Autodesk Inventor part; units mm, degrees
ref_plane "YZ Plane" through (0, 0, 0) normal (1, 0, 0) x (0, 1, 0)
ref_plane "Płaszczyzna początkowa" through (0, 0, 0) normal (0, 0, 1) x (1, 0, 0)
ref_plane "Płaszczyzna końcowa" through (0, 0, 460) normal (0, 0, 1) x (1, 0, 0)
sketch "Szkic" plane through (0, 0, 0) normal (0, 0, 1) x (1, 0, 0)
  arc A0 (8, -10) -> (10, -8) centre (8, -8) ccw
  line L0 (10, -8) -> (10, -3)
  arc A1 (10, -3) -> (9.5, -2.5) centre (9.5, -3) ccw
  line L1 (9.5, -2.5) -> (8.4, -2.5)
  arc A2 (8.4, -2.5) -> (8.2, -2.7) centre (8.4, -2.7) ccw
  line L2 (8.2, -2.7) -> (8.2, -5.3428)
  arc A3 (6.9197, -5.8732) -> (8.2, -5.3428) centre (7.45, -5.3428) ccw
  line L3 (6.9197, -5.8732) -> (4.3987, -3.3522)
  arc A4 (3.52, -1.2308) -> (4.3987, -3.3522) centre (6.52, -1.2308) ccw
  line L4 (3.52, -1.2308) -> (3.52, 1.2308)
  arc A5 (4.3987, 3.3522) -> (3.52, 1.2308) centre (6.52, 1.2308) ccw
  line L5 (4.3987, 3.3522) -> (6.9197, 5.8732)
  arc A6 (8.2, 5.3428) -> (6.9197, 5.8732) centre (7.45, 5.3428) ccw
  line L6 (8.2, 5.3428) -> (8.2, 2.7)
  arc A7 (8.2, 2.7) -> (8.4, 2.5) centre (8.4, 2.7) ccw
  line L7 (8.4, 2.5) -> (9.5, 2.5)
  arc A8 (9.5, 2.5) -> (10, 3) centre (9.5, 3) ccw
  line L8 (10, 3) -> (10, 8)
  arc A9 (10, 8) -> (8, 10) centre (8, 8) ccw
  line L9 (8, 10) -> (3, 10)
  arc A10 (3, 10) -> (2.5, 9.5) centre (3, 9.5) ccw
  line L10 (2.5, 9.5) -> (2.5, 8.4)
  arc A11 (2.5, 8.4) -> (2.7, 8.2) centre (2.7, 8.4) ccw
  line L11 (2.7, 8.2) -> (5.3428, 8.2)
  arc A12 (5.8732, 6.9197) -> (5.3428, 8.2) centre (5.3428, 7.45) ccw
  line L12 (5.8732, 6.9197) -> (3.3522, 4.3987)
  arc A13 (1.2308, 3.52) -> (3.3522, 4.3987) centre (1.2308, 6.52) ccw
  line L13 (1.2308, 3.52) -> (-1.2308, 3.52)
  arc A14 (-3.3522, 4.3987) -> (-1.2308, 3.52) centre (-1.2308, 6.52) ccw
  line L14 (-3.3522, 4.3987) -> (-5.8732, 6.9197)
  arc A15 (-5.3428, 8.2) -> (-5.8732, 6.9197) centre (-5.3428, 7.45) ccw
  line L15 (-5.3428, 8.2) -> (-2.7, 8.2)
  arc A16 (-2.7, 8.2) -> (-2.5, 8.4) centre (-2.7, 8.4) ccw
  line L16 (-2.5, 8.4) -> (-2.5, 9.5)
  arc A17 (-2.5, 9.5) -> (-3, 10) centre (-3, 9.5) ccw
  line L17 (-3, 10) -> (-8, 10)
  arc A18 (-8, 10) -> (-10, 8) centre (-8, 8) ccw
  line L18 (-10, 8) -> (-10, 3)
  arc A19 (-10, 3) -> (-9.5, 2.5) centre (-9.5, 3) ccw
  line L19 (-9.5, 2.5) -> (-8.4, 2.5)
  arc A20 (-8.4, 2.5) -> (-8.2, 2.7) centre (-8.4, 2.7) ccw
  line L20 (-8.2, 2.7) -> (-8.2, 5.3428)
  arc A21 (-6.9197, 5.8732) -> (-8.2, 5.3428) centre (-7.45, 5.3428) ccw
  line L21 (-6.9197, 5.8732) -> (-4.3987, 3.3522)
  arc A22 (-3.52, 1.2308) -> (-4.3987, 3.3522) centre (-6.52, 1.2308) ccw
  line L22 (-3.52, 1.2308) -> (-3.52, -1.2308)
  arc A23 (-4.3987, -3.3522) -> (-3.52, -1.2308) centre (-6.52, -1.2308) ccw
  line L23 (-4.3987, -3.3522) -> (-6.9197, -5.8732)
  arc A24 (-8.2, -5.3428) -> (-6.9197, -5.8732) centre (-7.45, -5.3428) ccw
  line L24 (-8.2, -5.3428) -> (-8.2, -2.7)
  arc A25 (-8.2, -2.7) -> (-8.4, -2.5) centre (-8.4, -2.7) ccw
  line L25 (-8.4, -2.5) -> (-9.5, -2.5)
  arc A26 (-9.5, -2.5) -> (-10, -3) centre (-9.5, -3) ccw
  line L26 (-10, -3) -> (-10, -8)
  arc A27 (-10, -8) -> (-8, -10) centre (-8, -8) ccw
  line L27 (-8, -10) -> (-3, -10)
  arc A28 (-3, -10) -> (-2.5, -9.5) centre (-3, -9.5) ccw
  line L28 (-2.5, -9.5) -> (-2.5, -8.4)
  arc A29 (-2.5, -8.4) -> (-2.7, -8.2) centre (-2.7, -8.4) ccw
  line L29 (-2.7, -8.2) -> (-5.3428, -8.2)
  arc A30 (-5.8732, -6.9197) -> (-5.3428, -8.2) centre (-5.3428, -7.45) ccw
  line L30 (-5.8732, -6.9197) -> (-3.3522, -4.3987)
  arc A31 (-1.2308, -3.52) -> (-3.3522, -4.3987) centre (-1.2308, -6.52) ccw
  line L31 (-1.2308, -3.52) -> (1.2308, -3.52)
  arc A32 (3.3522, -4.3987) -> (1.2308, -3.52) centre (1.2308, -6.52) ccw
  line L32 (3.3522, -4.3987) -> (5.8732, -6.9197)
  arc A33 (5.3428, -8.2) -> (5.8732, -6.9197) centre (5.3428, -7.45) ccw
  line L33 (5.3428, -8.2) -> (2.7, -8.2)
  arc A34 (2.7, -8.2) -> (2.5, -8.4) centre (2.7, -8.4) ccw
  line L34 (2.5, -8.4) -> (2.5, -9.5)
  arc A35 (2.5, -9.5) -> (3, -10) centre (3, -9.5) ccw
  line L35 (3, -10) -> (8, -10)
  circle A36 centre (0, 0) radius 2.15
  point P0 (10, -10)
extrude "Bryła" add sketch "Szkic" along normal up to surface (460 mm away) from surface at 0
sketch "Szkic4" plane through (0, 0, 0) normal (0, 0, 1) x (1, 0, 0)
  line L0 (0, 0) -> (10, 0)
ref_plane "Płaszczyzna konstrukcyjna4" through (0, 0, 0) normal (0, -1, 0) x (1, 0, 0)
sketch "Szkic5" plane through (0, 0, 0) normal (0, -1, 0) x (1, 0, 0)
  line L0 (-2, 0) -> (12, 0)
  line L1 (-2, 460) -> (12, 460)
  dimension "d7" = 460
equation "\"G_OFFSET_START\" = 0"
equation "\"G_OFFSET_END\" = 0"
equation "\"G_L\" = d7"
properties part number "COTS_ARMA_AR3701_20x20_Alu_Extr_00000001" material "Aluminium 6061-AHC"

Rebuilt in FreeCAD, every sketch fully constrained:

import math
import FreeCAD as App
import Part
import Sketcher
Q = App.Units.Quantity

doc = App.newDocument("Part")
body = doc.addObject("PartDesign::Body", "Body")

# Sketch on XY plane
sketch1 = body.newObject("Sketcher::SketchObject", "Sketch")
sketch1.AttachmentSupport = (doc.getObject("XY_Plane"), [""])
sketch1.MapMode = "FlatFace"
sketch1.addGeometry(Part.LineSegment(App.Vector(3, -10, 0), App.Vector(8, -10, 0)), False)
sketch1.addGeometry(Part.ArcOfCircle(Part.Circle(App.Vector(8, -8, 0), App.Vector(0, 0, 1), 2), math.radians(-90), math.radians(0)), False)
sketch1.addGeometry(Part.LineSegment(App.Vector(10, -8, 0), App.Vector(10, -3, 0)), False)
sketch1.addGeometry(Part.ArcOfCircle(Part.Circle(App.Vector(9.5, -3, 0), App.Vector(0, 0, 1), 0.5), math.radians(0), math.radians(90)), False)
sketch1.addGeometry(Part.LineSegment(App.Vector(9.5, -2.5, 0), App.Vector(8.4, -2.5, 0)), False)
sketch1.addGeometry(Part.ArcOfCircle(Part.Circle(App.Vector(8.4, -2.7, 0), App.Vector(0, 0, 1), 0.2), math.radians(90), math.radians(180)), False)
sketch1.addGeometry(Part.LineSegment(App.Vector(8.2, -2.7, 0), App.Vector(8.2, -5.34, 0)), False)
sketch1.addGeometry(Part.ArcOfCircle(Part.Circle(App.Vector(7.45, -5.34, 0), App.Vector(0, 0, 1), 0.75), math.radians(-135), math.radians(0)), False)
sketch1.addGeometry(Part.LineSegment(App.Vector(6.92, -5.87, 0), App.Vector(4.4, -3.35, 0)), False)
sketch1.addGeometry(Part.ArcOfCircle(Part.Circle(App.Vector(6.52, -1.23, 0), App.Vector(0, 0, 1), 3), math.radians(180), math.radians(225)), False)
sketch1.addGeometry(Part.LineSegment(App.Vector(3.52, -1.23, 0), App.Vector(3.52, 1.23, 0)), False)
sketch1.addGeometry(Part.ArcOfCircle(Part.Circle(App.Vector(6.52, 1.23, 0), App.Vector(0, 0, 1), 3), math.radians(135), math.radians(180)), False)
sketch1.addGeometry(Part.LineSegment(App.Vector(4.4, 3.35, 0), App.Vector(6.92, 5.87, 0)), False)
sketch1.addGeometry(Part.ArcOfCircle(Part.Circle(App.Vector(7.45, 5.34, 0), App.Vector(0, 0, 1), 0.75), math.radians(0), math.radians(135)), False)
sketch1.addGeometry(Part.LineSegment(App.Vector(8.2, 5.34, 0), App.Vector(8.2, 2.7, 0)), False)
sketch1.addGeometry(Part.ArcOfCircle(Part.Circle(App.Vector(8.4, 2.7, 0), App.Vector(0, 0, 1), 0.2), math.radians(180), math.radians(270)), False)
sketch1.addGeometry(Part.LineSegment(App.Vector(8.4, 2.5, 0), App.Vector(9.5, 2.5, 0)), False)
sketch1.addGeometry(Part.ArcOfCircle(Part.Circle(App.Vector(9.5, 3, 0), App.Vector(0, 0, 1), 0.5), math.radians(-90), math.radians(0)), False)
sketch1.addGeometry(Part.LineSegment(App.Vector(10, 3, 0), App.Vector(10, 8, 0)), False)
sketch1.addGeometry(Part.ArcOfCircle(Part.Circle(App.Vector(8, 8, 0), App.Vector(0, 0, 1), 2), math.radians(0), math.radians(90)), False)
sketch1.addGeometry(Part.LineSegment(App.Vector(8, 10, 0), App.Vector(3, 10, 0)), False)
sketch1.addGeometry(Part.ArcOfCircle(Part.Circle(App.Vector(3, 9.5, 0), App.Vector(0, 0, 1), 0.5), math.radians(90), math.radians(180)), False)
sketch1.addGeometry(Part.LineSegment(App.Vector(2.5, 9.5, 0), App.Vector(2.5, 8.4, 0)), False)
sketch1.addGeometry(Part.ArcOfCircle(Part.Circle(App.Vector(2.7, 8.4, 0), App.Vector(0, 0, 1), 0.2), math.radians(180), math.radians(270)), False)
sketch1.addGeometry(Part.LineSegment(App.Vector(2.7, 8.2, 0), App.Vector(5.34, 8.2, 0)), False)
sketch1.addGeometry(Part.ArcOfCircle(Part.Circle(App.Vector(5.34, 7.45, 0), App.Vector(0, 0, 1), 0.75), math.radians(-45), math.radians(90)), False)
sketch1.addGeometry(Part.LineSegment(App.Vector(5.87, 6.92, 0), App.Vector(3.35, 4.4, 0)), False)
sketch1.addGeometry(Part.ArcOfCircle(Part.Circle(App.Vector(1.23, 6.52, 0), App.Vector(0, 0, 1), 3), math.radians(-90), math.radians(-45)), False)
sketch1.addGeometry(Part.LineSegment(App.Vector(1.23, 3.52, 0), App.Vector(-1.23, 3.52, 0)), False)
sketch1.addGeometry(Part.ArcOfCircle(Part.Circle(App.Vector(-1.23, 6.52, 0), App.Vector(0, 0, 1), 3), math.radians(-135), math.radians(-90)), False)
sketch1.addGeometry(Part.LineSegment(App.Vector(-3.35, 4.4, 0), App.Vector(-5.87, 6.92, 0)), False)
sketch1.addGeometry(Part.ArcOfCircle(Part.Circle(App.Vector(-5.34, 7.45, 0), App.Vector(0, 0, 1), 0.75), math.radians(90), math.radians(225)), False)
sketch1.addGeometry(Part.LineSegment(App.Vector(-5.34, 8.2, 0), App.Vector(-2.7, 8.2, 0)), False)
sketch1.addGeometry(Part.ArcOfCircle(Part.Circle(App.Vector(-2.7, 8.4, 0), App.Vector(0, 0, 1), 0.2), math.radians(-90), math.radians(0)), False)
sketch1.addGeometry(Part.LineSegment(App.Vector(-2.5, 8.4, 0), App.Vector(-2.5, 9.5, 0)), False)
sketch1.addGeometry(Part.ArcOfCircle(Part.Circle(App.Vector(-3, 9.5, 0), App.Vector(0, 0, 1), 0.5), math.radians(0), math.radians(90)), False)
sketch1.addGeometry(Part.LineSegment(App.Vector(-3, 10, 0), App.Vector(-8, 10, 0)), False)
sketch1.addGeometry(Part.ArcOfCircle(Part.Circle(App.Vector(-8, 8, 0), App.Vector(0, 0, 1), 2), math.radians(90), math.radians(180)), False)
sketch1.addGeometry(Part.LineSegment(App.Vector(-10, 8, 0), App.Vector(-10, 3, 0)), False)
sketch1.addGeometry(Part.ArcOfCircle(Part.Circle(App.Vector(-9.5, 3, 0), App.Vector(0, 0, 1), 0.5), math.radians(180), math.radians(270)), False)
sketch1.addGeometry(Part.LineSegment(App.Vector(-9.5, 2.5, 0), App.Vector(-8.4, 2.5, 0)), False)
sketch1.addGeometry(Part.ArcOfCircle(Part.Circle(App.Vector(-8.4, 2.7, 0), App.Vector(0, 0, 1), 0.2), math.radians(-90), math.radians(0)), False)
sketch1.addGeometry(Part.LineSegment(App.Vector(-8.2, 2.7, 0), App.Vector(-8.2, 5.34, 0)), False)
sketch1.addGeometry(Part.ArcOfCircle(Part.Circle(App.Vector(-7.45, 5.34, 0), App.Vector(0, 0, 1), 0.75), math.radians(45), math.radians(180)), False)
sketch1.addGeometry(Part.LineSegment(App.Vector(-6.92, 5.87, 0), App.Vector(-4.4, 3.35, 0)), False)
sketch1.addGeometry(Part.ArcOfCircle(Part.Circle(App.Vector(-6.52, 1.23, 0), App.Vector(0, 0, 1), 3), math.radians(0), math.radians(45)), False)
sketch1.addGeometry(Part.LineSegment(App.Vector(-3.52, 1.23, 0), App.Vector(-3.52, -1.23, 0)), False)
sketch1.addGeometry(Part.ArcOfCircle(Part.Circle(App.Vector(-6.52, -1.23, 0), App.Vector(0, 0, 1), 3), math.radians(-45), math.radians(0)), False)
sketch1.addGeometry(Part.LineSegment(App.Vector(-4.4, -3.35, 0), App.Vector(-6.92, -5.87, 0)), False)
sketch1.addGeometry(Part.ArcOfCircle(Part.Circle(App.Vector(-7.45, -5.34, 0), App.Vector(0, 0, 1), 0.75), math.radians(180), math.radians(315)), False)
sketch1.addGeometry(Part.LineSegment(App.Vector(-8.2, -5.34, 0), App.Vector(-8.2, -2.7, 0)), False)
sketch1.addGeometry(Part.ArcOfCircle(Part.Circle(App.Vector(-8.4, -2.7, 0), App.Vector(0, 0, 1), 0.2), math.radians(0), math.radians(90)), False)
sketch1.addGeometry(Part.LineSegment(App.Vector(-8.4, -2.5, 0), App.Vector(-9.5, -2.5, 0)), False)
sketch1.addGeometry(Part.ArcOfCircle(Part.Circle(App.Vector(-9.5, -3, 0), App.Vector(0, 0, 1), 0.5), math.radians(90), math.radians(180)), False)
sketch1.addGeometry(Part.LineSegment(App.Vector(-10, -3, 0), App.Vector(-10, -8, 0)), False)
sketch1.addGeometry(Part.ArcOfCircle(Part.Circle(App.Vector(-8, -8, 0), App.Vector(0, 0, 1), 2), math.radians(180), math.radians(270)), False)
sketch1.addGeometry(Part.LineSegment(App.Vector(-8, -10, 0), App.Vector(-3, -10, 0)), False)
sketch1.addGeometry(Part.ArcOfCircle(Part.Circle(App.Vector(-3, -9.5, 0), App.Vector(0, 0, 1), 0.5), math.radians(-90), math.radians(0)), False)
sketch1.addGeometry(Part.LineSegment(App.Vector(-2.5, -9.5, 0), App.Vector(-2.5, -8.4, 0)), False)
sketch1.addGeometry(Part.ArcOfCircle(Part.Circle(App.Vector(-2.7, -8.4, 0), App.Vector(0, 0, 1), 0.2), math.radians(0), math.radians(90)), False)
sketch1.addGeometry(Part.LineSegment(App.Vector(-2.7, -8.2, 0), App.Vector(-5.34, -8.2, 0)), False)
sketch1.addGeometry(Part.ArcOfCircle(Part.Circle(App.Vector(-5.34, -7.45, 0), App.Vector(0, 0, 1), 0.75), math.radians(135), math.radians(270)), False)
sketch1.addGeometry(Part.LineSegment(App.Vector(-5.87, -6.92, 0), App.Vector(-3.35, -4.4, 0)), False)
sketch1.addGeometry(Part.ArcOfCircle(Part.Circle(App.Vector(-1.23, -6.52, 0), App.Vector(0, 0, 1), 3), math.radians(90), math.radians(135)), False)
sketch1.addGeometry(Part.LineSegment(App.Vector(-1.23, -3.52, 0), App.Vector(1.23, -3.52, 0)), False)
sketch1.addGeometry(Part.ArcOfCircle(Part.Circle(App.Vector(1.23, -6.52, 0), App.Vector(0, 0, 1), 3), math.radians(45), math.radians(90)), False)
sketch1.addGeometry(Part.LineSegment(App.Vector(3.35, -4.4, 0), App.Vector(5.87, -6.92, 0)), False)
sketch1.addGeometry(Part.ArcOfCircle(Part.Circle(App.Vector(5.34, -7.45, 0), App.Vector(0, 0, 1), 0.75), math.radians(-90), math.radians(45)), False)
sketch1.addGeometry(Part.LineSegment(App.Vector(5.34, -8.2, 0), App.Vector(2.7, -8.2, 0)), False)
sketch1.addGeometry(Part.ArcOfCircle(Part.Circle(App.Vector(2.7, -8.4, 0), App.Vector(0, 0, 1), 0.2), math.radians(90), math.radians(180)), False)
sketch1.addGeometry(Part.LineSegment(App.Vector(2.5, -8.4, 0), App.Vector(2.5, -9.5, 0)), False)
sketch1.addGeometry(Part.ArcOfCircle(Part.Circle(App.Vector(3, -9.5, 0), App.Vector(0, 0, 1), 0.5), math.radians(180), math.radians(270)), False)
sketch1.addGeometry(Part.Circle(App.Vector(0, 0, 0), App.Vector(0, 0, 1), 2.15), False)
sketch1.addConstraint(Sketcher.Constraint("Tangent", 0, 2, 1, 1))
sketch1.addConstraint(Sketcher.Constraint("Tangent", 1, 2, 2, 1))
sketch1.addConstraint(Sketcher.Constraint("Tangent", 2, 2, 3, 1))
sketch1.addConstraint(Sketcher.Constraint("Tangent", 3, 2, 4, 1))
sketch1.addConstraint(Sketcher.Constraint("Tangent", 4, 2, 5, 1))
sketch1.addConstraint(Sketcher.Constraint("Tangent", 5, 2, 6, 1))
sketch1.addConstraint(Sketcher.Constraint("Tangent", 6, 2, 7, 2))
sketch1.addConstraint(Sketcher.Constraint("Tangent", 7, 1, 8, 1))
sketch1.addConstraint(Sketcher.Constraint("Tangent", 8, 2, 9, 2))
sketch1.addConstraint(Sketcher.Constraint("Tangent", 9, 1, 10, 1))
sketch1.addConstraint(Sketcher.Constraint("Tangent", 10, 2, 11, 2))
sketch1.addConstraint(Sketcher.Constraint("Tangent", 11, 1, 12, 1))
sketch1.addConstraint(Sketcher.Constraint("Tangent", 12, 2, 13, 2))
sketch1.addConstraint(Sketcher.Constraint("Tangent", 13, 1, 14, 1))
sketch1.addConstraint(Sketcher.Constraint("Tangent", 14, 2, 15, 1))
sketch1.addConstraint(Sketcher.Constraint("Tangent", 15, 2, 16, 1))
sketch1.addConstraint(Sketcher.Constraint("Tangent", 16, 2, 17, 1))
sketch1.addConstraint(Sketcher.Constraint("Tangent", 17, 2, 18, 1))
sketch1.addConstraint(Sketcher.Constraint("Tangent", 18, 2, 19, 1))
sketch1.addConstraint(Sketcher.Constraint("Tangent", 19, 2, 20, 1))
sketch1.addConstraint(Sketcher.Constraint("Tangent", 20, 2, 21, 1))
sketch1.addConstraint(Sketcher.Constraint("Tangent", 21, 2, 22, 1))
sketch1.addConstraint(Sketcher.Constraint("Tangent", 22, 2, 23, 1))
sketch1.addConstraint(Sketcher.Constraint("Tangent", 23, 2, 24, 1))
sketch1.addConstraint(Sketcher.Constraint("Tangent", 24, 2, 25, 2))
sketch1.addConstraint(Sketcher.Constraint("Tangent", 25, 1, 26, 1))
sketch1.addConstraint(Sketcher.Constraint("Tangent", 26, 2, 27, 2))
sketch1.addConstraint(Sketcher.Constraint("Tangent", 27, 1, 28, 1))
sketch1.addConstraint(Sketcher.Constraint("Tangent", 28, 2, 29, 2))
sketch1.addConstraint(Sketcher.Constraint("Tangent", 29, 1, 30, 1))
sketch1.addConstraint(Sketcher.Constraint("Tangent", 30, 2, 31, 2))
sketch1.addConstraint(Sketcher.Constraint("Tangent", 31, 1, 32, 1))
sketch1.addConstraint(Sketcher.Constraint("Tangent", 32, 2, 33, 1))
sketch1.addConstraint(Sketcher.Constraint("Tangent", 33, 2, 34, 1))
sketch1.addConstraint(Sketcher.Constraint("Tangent", 34, 2, 35, 1))
sketch1.addConstraint(Sketcher.Constraint("Tangent", 35, 2, 36, 1))
sketch1.addConstraint(Sketcher.Constraint("Tangent", 36, 2, 37, 1))
sketch1.addConstraint(Sketcher.Constraint("Tangent", 37, 2, 38, 1))
sketch1.addConstraint(Sketcher.Constraint("Tangent", 38, 2, 39, 1))
sketch1.addConstraint(Sketcher.Constraint("Tangent", 39, 2, 40, 1))
sketch1.addConstraint(Sketcher.Constraint("Tangent", 40, 2, 41, 1))
sketch1.addConstraint(Sketcher.Constraint("Tangent", 41, 2, 42, 1))
sketch1.addConstraint(Sketcher.Constraint("Tangent", 42, 2, 43, 2))
sketch1.addConstraint(Sketcher.Constraint("Tangent", 43, 1, 44, 1))
sketch1.addConstraint(Sketcher.Constraint("Tangent", 44, 2, 45, 2))
sketch1.addConstraint(Sketcher.Constraint("Tangent", 45, 1, 46, 1))
sketch1.addConstraint(Sketcher.Constraint("Tangent", 46, 2, 47, 2))
sketch1.addConstraint(Sketcher.Constraint("Tangent", 47, 1, 48, 1))
sketch1.addConstraint(Sketcher.Constraint("Tangent", 48, 2, 49, 2))
sketch1.addConstraint(Sketcher.Constraint("Tangent", 49, 1, 50, 1))
sketch1.addConstraint(Sketcher.Constraint("Tangent", 50, 2, 51, 1))
sketch1.addConstraint(Sketcher.Constraint("Tangent", 51, 2, 52, 1))
sketch1.addConstraint(Sketcher.Constraint("Tangent", 52, 2, 53, 1))
sketch1.addConstraint(Sketcher.Constraint("Tangent", 53, 2, 54, 1))
sketch1.addConstraint(Sketcher.Constraint("Tangent", 54, 2, 55, 1))
sketch1.addConstraint(Sketcher.Constraint("Tangent", 55, 2, 56, 1))
sketch1.addConstraint(Sketcher.Constraint("Tangent", 56, 2, 57, 1))
sketch1.addConstraint(Sketcher.Constraint("Tangent", 57, 2, 58, 1))
sketch1.addConstraint(Sketcher.Constraint("Tangent", 58, 2, 59, 1))
sketch1.addConstraint(Sketcher.Constraint("Tangent", 59, 2, 60, 1))
sketch1.addConstraint(Sketcher.Constraint("Tangent", 60, 2, 61, 2))
sketch1.addConstraint(Sketcher.Constraint("Tangent", 61, 1, 62, 1))
sketch1.addConstraint(Sketcher.Constraint("Tangent", 62, 2, 63, 2))
sketch1.addConstraint(Sketcher.Constraint("Tangent", 63, 1, 64, 1))
sketch1.addConstraint(Sketcher.Constraint("Tangent", 64, 2, 65, 2))
sketch1.addConstraint(Sketcher.Constraint("Tangent", 65, 1, 66, 1))
sketch1.addConstraint(Sketcher.Constraint("Tangent", 66, 2, 67, 2))
sketch1.addConstraint(Sketcher.Constraint("Tangent", 67, 1, 68, 1))
sketch1.addConstraint(Sketcher.Constraint("Tangent", 68, 2, 69, 1))
sketch1.addConstraint(Sketcher.Constraint("Tangent", 69, 2, 70, 1))
sketch1.addConstraint(Sketcher.Constraint("Tangent", 70, 2, 71, 1))
sketch1.addConstraint(Sketcher.Constraint("Tangent", 71, 2, 0, 1))
sketch1.addConstraint(Sketcher.Constraint("Horizontal", 0))
sketch1.addConstraint(Sketcher.Constraint("Vertical", 2))
sketch1.addConstraint(Sketcher.Constraint("Horizontal", 4))
sketch1.addConstraint(Sketcher.Constraint("Vertical", 6))
sketch1.addConstraint(Sketcher.Constraint("Vertical", 10))
sketch1.addConstraint(Sketcher.Constraint("Vertical", 14))
sketch1.addConstraint(Sketcher.Constraint("Horizontal", 16))
sketch1.addConstraint(Sketcher.Constraint("Vertical", 18))
sketch1.addConstraint(Sketcher.Constraint("Horizontal", 20))
sketch1.addConstraint(Sketcher.Constraint("Vertical", 22))
sketch1.addConstraint(Sketcher.Constraint("Horizontal", 24))
sketch1.addConstraint(Sketcher.Constraint("Horizontal", 28))
sketch1.addConstraint(Sketcher.Constraint("Horizontal", 32))
sketch1.addConstraint(Sketcher.Constraint("Vertical", 34))
sketch1.addConstraint(Sketcher.Constraint("Horizontal", 36))
sketch1.addConstraint(Sketcher.Constraint("Vertical", 38))
sketch1.addConstraint(Sketcher.Constraint("Horizontal", 40))
sketch1.addConstraint(Sketcher.Constraint("Vertical", 42))
sketch1.addConstraint(Sketcher.Constraint("Vertical", 46))
sketch1.addConstraint(Sketcher.Constraint("Vertical", 50))
sketch1.addConstraint(Sketcher.Constraint("Horizontal", 52))
sketch1.addConstraint(Sketcher.Constraint("Vertical", 54))
sketch1.addConstraint(Sketcher.Constraint("Horizontal", 56))
sketch1.addConstraint(Sketcher.Constraint("Vertical", 58))
sketch1.addConstraint(Sketcher.Constraint("Horizontal", 60))
sketch1.addConstraint(Sketcher.Constraint("Horizontal", 64))
sketch1.addConstraint(Sketcher.Constraint("Horizontal", 68))
sketch1.addConstraint(Sketcher.Constraint("Vertical", 70))
sketch1.addConstraint(Sketcher.Constraint("Coincident", 72, 3, -1, 1))
sketch1.addConstraint(Sketcher.Constraint("Equal", 9, 11))
sketch1.addConstraint(Sketcher.Constraint("Equal", 7, 13))
sketch1.addConstraint(Sketcher.Constraint("Equal", 5, 15))
sketch1.addConstraint(Sketcher.Constraint("Equal", 3, 17))
sketch1.addConstraint(Sketcher.Constraint("Equal", 1, 19))
sketch1.addConstraint(Sketcher.Constraint("Equal", 17, 21))
sketch1.addConstraint(Sketcher.Constraint("Equal", 15, 23))
sketch1.addConstraint(Sketcher.Constraint("Equal", 13, 25))
sketch1.addConstraint(Sketcher.Constraint("Equal", 11, 27))
sketch1.addConstraint(Sketcher.Constraint("Equal", 27, 29))
sketch1.addConstraint(Sketcher.Constraint("Equal", 25, 31))
sketch1.addConstraint(Sketcher.Constraint("Equal", 23, 33))
sketch1.addConstraint(Sketcher.Constraint("Equal", 21, 35))
sketch1.addConstraint(Sketcher.Constraint("Equal", 19, 37))
sketch1.addConstraint(Sketcher.Constraint("Equal", 35, 39))
sketch1.addConstraint(Sketcher.Constraint("Equal", 33, 41))
sketch1.addConstraint(Sketcher.Constraint("Equal", 31, 43))
sketch1.addConstraint(Sketcher.Constraint("Equal", 29, 45))
sketch1.addConstraint(Sketcher.Constraint("Equal", 45, 47))
sketch1.addConstraint(Sketcher.Constraint("Equal", 43, 49))
sketch1.addConstraint(Sketcher.Constraint("Equal", 41, 51))
sketch1.addConstraint(Sketcher.Constraint("Equal", 39, 53))
sketch1.addConstraint(Sketcher.Constraint("Equal", 37, 55))
sketch1.addConstraint(Sketcher.Constraint("Equal", 53, 57))
sketch1.addConstraint(Sketcher.Constraint("Equal", 51, 59))
sketch1.addConstraint(Sketcher.Constraint("Equal", 49, 61))
sketch1.addConstraint(Sketcher.Constraint("Equal", 47, 63))
sketch1.addConstraint(Sketcher.Constraint("Equal", 63, 65))
sketch1.addConstraint(Sketcher.Constraint("Equal", 61, 67))
sketch1.addConstraint(Sketcher.Constraint("Equal", 59, 69))
sketch1.addConstraint(Sketcher.Constraint("Equal", 57, 71))
sketch1.addConstraint(Sketcher.Constraint("Symmetric", 1, 3, 37, 3, -1, 1))
sketch1.addConstraint(Sketcher.Constraint("Symmetric", 5, 3, 41, 3, -1, 1))
sketch1.addConstraint(Sketcher.Constraint("Symmetric", 9, 3, 45, 3, -1, 1))
sketch1.addConstraint(Sketcher.Constraint("Symmetric", 13, 3, 49, 3, -1, 1))
sketch1.addConstraint(Sketcher.Constraint("Symmetric", 17, 3, 53, 3, -1, 1))
sketch1.addConstraint(Sketcher.Constraint("Symmetric", 21, 3, 57, 3, -1, 1))
sketch1.addConstraint(Sketcher.Constraint("Symmetric", 25, 3, 61, 3, -1, 1))
sketch1.addConstraint(Sketcher.Constraint("Symmetric", 27, 3, 63, 3, -1, 1))
sketch1.addConstraint(Sketcher.Constraint("Symmetric", 31, 3, 67, 3, -1, 1))
sketch1.addConstraint(Sketcher.Constraint("Symmetric", 25, 3, 31, 3, -2))
sketch1.addConstraint(Sketcher.Constraint("Symmetric", 21, 3, 35, 3, -2))
sketch1.addConstraint(Sketcher.Constraint("Symmetric", 17, 3, 39, 3, -2))
sketch1.addConstraint(Sketcher.Constraint("Symmetric", 13, 3, 43, 3, -2))
sketch1.addConstraint(Sketcher.Constraint("Symmetric", 8, 2, 47, 1, -2))
sketch1.addConstraint(Sketcher.Constraint("Perpendicular", 8, 12))
sketch1.addConstraint(Sketcher.Constraint("Parallel", 12, 26))
sketch1.addConstraint(Sketcher.Constraint("Perpendicular", 26, 30))
sketch1.addConstraint(Sketcher.Constraint("Perpendicular", 44, 48))
sketch1.addConstraint(Sketcher.Constraint("Perpendicular", 62, 66))
sketch1.addConstraint(Sketcher.Constraint("Vertical", 23, 3, 69, 3))
sketch1.addConstraint(Sketcher.Constraint("Equal", 56, 2))
sketch1.addConstraint(Sketcher.Constraint("Equal", 68, 6))
sketch1.addConstraint(Sketcher.Constraint("Equal", 64, 10))
sketch1.addConstraint(Sketcher.Constraint("Equal", 52, 22))
sketch1.addConstraint(Sketcher.Constraint("Equal", 12, 26))
sketch1.addConstraint(Sketcher.Constraint("Radius", 1, Q("2 mm")))
sketch1.addConstraint(Sketcher.Constraint("Radius", 9, Q("3 mm")))
sketch1.addConstraint(Sketcher.Constraint("Diameter", 72, Q("4.3 mm")))
sketch1.addConstraint(Sketcher.Constraint("Radius", 3, Q("0.5 mm")))
sketch1.addConstraint(Sketcher.Constraint("Radius", 5, Q("0.2 mm")))
sketch1.addConstraint(Sketcher.Constraint("DistanceX", 0, 1, 0, 2, Q("5 mm")))
sketch1.addConstraint(Sketcher.Constraint("Radius", 7, Q("0.75 mm")))
sketch1.addConstraint(Sketcher.Constraint("DistanceX", 4, 2, 4, 1, Q("1.1 mm")))
sketch1.addConstraint(Sketcher.Constraint("DistanceX", -1, 1, 1, 3, Q("8 mm")))
sketch1.addConstraint(Sketcher.Constraint("DistanceX", -1, 1, 9, 3, Q("6.52 mm")))
sketch1.addConstraint(Sketcher.Constraint("DistanceX", 24, 1, 24, 2, Q("2.6428 mm")))
pad1 = body.newObject("PartDesign::Pad", "Pad")
pad1.Profile = sketch1
pad1.Length = 460

doc.recompute()
